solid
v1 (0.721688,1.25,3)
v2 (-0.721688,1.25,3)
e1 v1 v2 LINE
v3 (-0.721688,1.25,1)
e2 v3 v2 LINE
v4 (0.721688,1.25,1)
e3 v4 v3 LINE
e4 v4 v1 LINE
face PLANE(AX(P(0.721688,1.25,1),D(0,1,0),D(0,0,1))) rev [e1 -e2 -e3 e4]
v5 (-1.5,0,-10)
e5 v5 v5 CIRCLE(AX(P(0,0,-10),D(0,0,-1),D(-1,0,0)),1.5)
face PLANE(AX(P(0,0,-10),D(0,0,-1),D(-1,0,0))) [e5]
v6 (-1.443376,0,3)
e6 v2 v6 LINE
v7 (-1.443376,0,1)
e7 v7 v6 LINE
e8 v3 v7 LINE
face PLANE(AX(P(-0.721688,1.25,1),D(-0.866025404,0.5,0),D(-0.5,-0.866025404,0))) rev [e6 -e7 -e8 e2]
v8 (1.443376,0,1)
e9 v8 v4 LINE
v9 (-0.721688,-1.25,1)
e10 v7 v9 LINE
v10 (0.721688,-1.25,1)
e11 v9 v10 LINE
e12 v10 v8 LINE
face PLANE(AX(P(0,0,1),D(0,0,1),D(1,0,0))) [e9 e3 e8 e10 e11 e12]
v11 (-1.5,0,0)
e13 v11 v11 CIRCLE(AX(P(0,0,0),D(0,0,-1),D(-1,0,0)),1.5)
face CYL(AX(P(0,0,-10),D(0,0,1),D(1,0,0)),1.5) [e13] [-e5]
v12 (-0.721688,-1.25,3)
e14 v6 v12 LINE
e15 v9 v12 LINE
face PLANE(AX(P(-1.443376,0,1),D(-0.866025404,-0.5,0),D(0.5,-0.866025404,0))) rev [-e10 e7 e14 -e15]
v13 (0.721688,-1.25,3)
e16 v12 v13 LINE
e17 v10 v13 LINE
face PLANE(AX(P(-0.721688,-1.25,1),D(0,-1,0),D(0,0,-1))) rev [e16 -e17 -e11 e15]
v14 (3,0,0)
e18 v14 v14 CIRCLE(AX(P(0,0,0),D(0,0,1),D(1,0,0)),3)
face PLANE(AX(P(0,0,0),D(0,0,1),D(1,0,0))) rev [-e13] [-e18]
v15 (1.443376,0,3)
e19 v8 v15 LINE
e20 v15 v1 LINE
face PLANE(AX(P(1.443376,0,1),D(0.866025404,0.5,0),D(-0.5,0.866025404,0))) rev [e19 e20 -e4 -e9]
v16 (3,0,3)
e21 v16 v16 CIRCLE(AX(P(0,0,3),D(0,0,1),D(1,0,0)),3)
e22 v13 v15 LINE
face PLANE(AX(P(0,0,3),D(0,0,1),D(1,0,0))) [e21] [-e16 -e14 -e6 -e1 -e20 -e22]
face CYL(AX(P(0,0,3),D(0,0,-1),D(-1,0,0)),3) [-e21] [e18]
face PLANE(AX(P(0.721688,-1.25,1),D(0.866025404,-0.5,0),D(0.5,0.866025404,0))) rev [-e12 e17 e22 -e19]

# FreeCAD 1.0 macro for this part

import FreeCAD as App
import Part
import Sketcher
from FreeCAD import Vector
Q = App.Units.Quantity


def add_polygon(sketch, points):
    """Adds a closed chain of lines whose ends are joined by coincident constraints."""
    first, n = sketch.GeometryCount, len(points)
    for a, b in zip(points, points[1:] + points[:1]):
        sketch.addGeometry(Part.LineSegment(App.Vector(*a, 0), App.Vector(*b, 0)), False)
    for i in range(n):
        sketch.addConstraint(Sketcher.Constraint("Coincident", first + i, 2, first + (i + 1) % n, 1))

doc = App.newDocument("Part")
body = doc.addObject("PartDesign::Body", "Body")

# Sketch on XY plane
sketch1 = doc.addObject("Sketcher::SketchObject", "Sketch")
body.addObject(sketch1)
sketch1.AttachmentSupport = (doc.XY_Plane, [""])
sketch1.MapMode = "FlatFace"
sketch1.addGeometry(Part.Circle(Vector(0, 0, 0), Vector(0, 0, 1), 3), False)
sketch1.addConstraint([
    Sketcher.Constraint("Coincident", 0, 3, -1, 1),
    Sketcher.Constraint("Diameter", 0, 6.0),
])
pad1 = doc.addObject("PartDesign::Pad", "Pad")
body.addObject(pad1)
pad1.Profile = sketch1
pad1.Length = 3

# Sketch on XY plane
sketch2 = doc.addObject("Sketcher::SketchObject", "Sketch001")
body.addObject(sketch2)
sketch2.AttachmentSupport = (doc.XY_Plane, [""])
sketch2.MapMode = "FlatFace"
sketch2.AttachmentOffset = App.Placement(Vector(0, 0, 3), App.Rotation())
add_polygon(sketch2, [(1.4, 0), (0.7, 1.2), (-0.7, 1.2), (-1.4, 0), (-0.7, -1.2), (0.7, -1.2)])  # lines 0-5
sketch2.addConstraint([
    Sketcher.Constraint("Horizontal", 1),
    Sketcher.Constraint("Horizontal", 4),
    Sketcher.Constraint("Symmetric", 0, 2, 3, 2, -1, 1),
    Sketcher.Constraint("Symmetric", 2, 2, 5, 2, -1, 1),
    Sketcher.Constraint("PointOnObject", 2, 2, -1),
    Sketcher.Constraint("Parallel", 2, 5),
    Sketcher.Constraint("Vertical", 1, 2, 3, 2),
    Sketcher.Constraint("Angle", 0, Q("120 deg")),
    Sketcher.Constraint("DistanceY", 3, 2, 1, 2, 2.5),
    Sketcher.Constraint("DistanceX", 1, 2, 1, 1, 1.443376),
])
pocket1 = doc.addObject("PartDesign::Pocket", "Pocket")
body.addObject(pocket1)
pocket1.Profile = sketch2
pocket1.Length = 2

# Sketch on XY plane
sketch3 = doc.addObject("Sketcher::SketchObject", "Sketch002")
body.addObject(sketch3)
sketch3.AttachmentSupport = (doc.XY_Plane, [""])
sketch3.MapMode = "FlatFace"
sketch3.addGeometry(Part.Circle(Vector(0, 0, 0), Vector(0, 0, 1), 1.5), False)
sketch3.addConstraint([
    Sketcher.Constraint("Coincident", 0, 3, -1, 1),
    Sketcher.Constraint("Diameter", 0, 3.0),
])
pad2 = doc.addObject("PartDesign::Pad", "Pad001")
body.addObject(pad2)
pad2.Profile = sketch3
pad2.Length = 10
pad2.Reversed = True

doc.recompute()
